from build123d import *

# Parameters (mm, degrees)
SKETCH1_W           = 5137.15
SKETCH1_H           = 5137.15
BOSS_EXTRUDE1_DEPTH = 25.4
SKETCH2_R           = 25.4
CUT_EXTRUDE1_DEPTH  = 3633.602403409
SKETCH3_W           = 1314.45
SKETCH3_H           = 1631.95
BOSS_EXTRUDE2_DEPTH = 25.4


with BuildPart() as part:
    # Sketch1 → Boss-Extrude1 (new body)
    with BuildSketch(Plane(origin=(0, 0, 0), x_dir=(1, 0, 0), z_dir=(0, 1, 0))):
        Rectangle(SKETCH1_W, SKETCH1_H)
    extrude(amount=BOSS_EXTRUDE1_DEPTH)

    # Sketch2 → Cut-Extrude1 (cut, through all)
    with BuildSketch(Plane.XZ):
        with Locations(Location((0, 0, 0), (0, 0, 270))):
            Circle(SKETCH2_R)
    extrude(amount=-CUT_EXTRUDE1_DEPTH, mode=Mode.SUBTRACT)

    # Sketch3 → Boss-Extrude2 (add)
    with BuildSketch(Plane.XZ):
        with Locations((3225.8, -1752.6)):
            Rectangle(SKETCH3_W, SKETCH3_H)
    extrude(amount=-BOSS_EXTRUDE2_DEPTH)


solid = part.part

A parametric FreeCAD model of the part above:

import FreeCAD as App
import Part
import Sketcher
from FreeCAD import Vector
Q = App.Units.Quantity


def add_polygon(sketch, points):
    """Adds a closed chain of lines whose ends are joined by coincident constraints."""
    first, n = sketch.GeometryCount, len(points)
    for a, b in zip(points, points[1:] + points[:1]):
        sketch.addGeometry(Part.LineSegment(App.Vector(*a, 0), App.Vector(*b, 0)), False)
    for i in range(n):
        sketch.addConstraint(Sketcher.Constraint("Coincident", first + i, 2, first + (i + 1) % n, 1))

doc = App.newDocument("Part")
params = doc.addObject("Spreadsheet::Sheet", "Params")
for row, (alias, value) in enumerate([
    ("sketch1_width", "202.25 in"),
    ("pad1_length", "1 in"),
    ("sketch2_diameter", "2 in"),
    ("sketch3_width", "51.75 in"),
    ("sketch3_height", "64.25 in"),
    ("pad2_length", "1 in"),
], start=1):
    params.set(f"A{row}", alias)
    params.set(f"B{row}", "=" + value)
    params.setAlias(f"B{row}", alias)

body = doc.addObject("PartDesign::Body", "Body")

# Sketch on XZ plane
sketch1 = body.newObject("Sketcher::SketchObject", "Sketch")
sketch1.AttachmentSupport = (doc.getObject("XZ_Plane"), [""])
sketch1.MapMode = "FlatFace"
add_polygon(sketch1, [(-2569, -2569), (-2569, 2569), (2569, 2569), (2569, -2569)])  # lines 0-3
sketch1.addConstraint([
    Sketcher.Constraint("Vertical", 0),
    Sketcher.Constraint("Horizontal", 1),
    Sketcher.Constraint("Vertical", 2),
    Sketcher.Constraint("Horizontal", 3),
    Sketcher.Constraint("Symmetric", 0, 2, 2, 2, -1, 1),
    Sketcher.Constraint("Equal", 3, 0),
    Sketcher.Constraint("DistanceX", 1, 1, 1, 2, Q("202.25 in")),
])
sketch1.setExpression("Constraints[10]", "Params.sketch1_width")
pad1 = body.newObject("PartDesign::Pad", "Pad")
pad1.Profile = sketch1
pad1.setExpression("Length", "Params.pad1_length")
pad1.Reversed = True

# Sketch on XZ plane
sketch2 = body.newObject("Sketcher::SketchObject", "Sketch001")
sketch2.AttachmentSupport = (doc.getObject("XZ_Plane"), [""])
sketch2.MapMode = "FlatFace"
sketch2.addGeometry(Part.Circle(Vector(0, 0, 0), Vector(0, 0, 1), 25), False)
sketch2.addConstraint([
    Sketcher.Constraint("Coincident", 0, 3, -1, 1),
    Sketcher.Constraint("Diameter", 0, Q("2 in")),
])
sketch2.setExpression("Constraints[1]", "Params.sketch2_diameter")
pocket1 = body.newObject("PartDesign::Pocket", "Pocket")
pocket1.Profile = sketch2
pocket1.Type = "ThroughAll"

# Sketch on XZ plane
sketch3 = body.newObject("Sketcher::SketchObject", "Sketch002")
sketch3.AttachmentSupport = (doc.getObject("XZ_Plane"), [""])
sketch3.MapMode = "FlatFace"
add_polygon(sketch3, [(2569, -937), (2569, -2569), (3883, -2569), (3883, -937)])  # lines 0-3
sketch3.addConstraint([
    Sketcher.Constraint("Vertical", 0),
    Sketcher.Constraint("Horizontal", 1),
    Sketcher.Constraint("Vertical", 2),
    Sketcher.Constraint("Horizontal", 3),
    Sketcher.Constraint("DistanceX", 1, 1, 1, 2, Q("51.75 in")),
    Sketcher.Constraint("DistanceY", 0, 2, 0, 1, Q("64.25 in")),
    Sketcher.Constraint("DistanceX", -1, 1, 0, 2, Q("101.125 in")),
    Sketcher.Constraint("DistanceY", 0, 2, -1, 1, Q("101.125 in")),
])
sketch3.setExpression("Constraints[8]", "Params.sketch3_width")
sketch3.setExpression("Constraints[9]", "Params.sketch3_height")
pad2 = body.newObject("PartDesign::Pad", "Pad001")
pad2.Profile = sketch3
pad2.setExpression("Length", "Params.pad2_length")
pad2.Reversed = True

doc.recompute()
